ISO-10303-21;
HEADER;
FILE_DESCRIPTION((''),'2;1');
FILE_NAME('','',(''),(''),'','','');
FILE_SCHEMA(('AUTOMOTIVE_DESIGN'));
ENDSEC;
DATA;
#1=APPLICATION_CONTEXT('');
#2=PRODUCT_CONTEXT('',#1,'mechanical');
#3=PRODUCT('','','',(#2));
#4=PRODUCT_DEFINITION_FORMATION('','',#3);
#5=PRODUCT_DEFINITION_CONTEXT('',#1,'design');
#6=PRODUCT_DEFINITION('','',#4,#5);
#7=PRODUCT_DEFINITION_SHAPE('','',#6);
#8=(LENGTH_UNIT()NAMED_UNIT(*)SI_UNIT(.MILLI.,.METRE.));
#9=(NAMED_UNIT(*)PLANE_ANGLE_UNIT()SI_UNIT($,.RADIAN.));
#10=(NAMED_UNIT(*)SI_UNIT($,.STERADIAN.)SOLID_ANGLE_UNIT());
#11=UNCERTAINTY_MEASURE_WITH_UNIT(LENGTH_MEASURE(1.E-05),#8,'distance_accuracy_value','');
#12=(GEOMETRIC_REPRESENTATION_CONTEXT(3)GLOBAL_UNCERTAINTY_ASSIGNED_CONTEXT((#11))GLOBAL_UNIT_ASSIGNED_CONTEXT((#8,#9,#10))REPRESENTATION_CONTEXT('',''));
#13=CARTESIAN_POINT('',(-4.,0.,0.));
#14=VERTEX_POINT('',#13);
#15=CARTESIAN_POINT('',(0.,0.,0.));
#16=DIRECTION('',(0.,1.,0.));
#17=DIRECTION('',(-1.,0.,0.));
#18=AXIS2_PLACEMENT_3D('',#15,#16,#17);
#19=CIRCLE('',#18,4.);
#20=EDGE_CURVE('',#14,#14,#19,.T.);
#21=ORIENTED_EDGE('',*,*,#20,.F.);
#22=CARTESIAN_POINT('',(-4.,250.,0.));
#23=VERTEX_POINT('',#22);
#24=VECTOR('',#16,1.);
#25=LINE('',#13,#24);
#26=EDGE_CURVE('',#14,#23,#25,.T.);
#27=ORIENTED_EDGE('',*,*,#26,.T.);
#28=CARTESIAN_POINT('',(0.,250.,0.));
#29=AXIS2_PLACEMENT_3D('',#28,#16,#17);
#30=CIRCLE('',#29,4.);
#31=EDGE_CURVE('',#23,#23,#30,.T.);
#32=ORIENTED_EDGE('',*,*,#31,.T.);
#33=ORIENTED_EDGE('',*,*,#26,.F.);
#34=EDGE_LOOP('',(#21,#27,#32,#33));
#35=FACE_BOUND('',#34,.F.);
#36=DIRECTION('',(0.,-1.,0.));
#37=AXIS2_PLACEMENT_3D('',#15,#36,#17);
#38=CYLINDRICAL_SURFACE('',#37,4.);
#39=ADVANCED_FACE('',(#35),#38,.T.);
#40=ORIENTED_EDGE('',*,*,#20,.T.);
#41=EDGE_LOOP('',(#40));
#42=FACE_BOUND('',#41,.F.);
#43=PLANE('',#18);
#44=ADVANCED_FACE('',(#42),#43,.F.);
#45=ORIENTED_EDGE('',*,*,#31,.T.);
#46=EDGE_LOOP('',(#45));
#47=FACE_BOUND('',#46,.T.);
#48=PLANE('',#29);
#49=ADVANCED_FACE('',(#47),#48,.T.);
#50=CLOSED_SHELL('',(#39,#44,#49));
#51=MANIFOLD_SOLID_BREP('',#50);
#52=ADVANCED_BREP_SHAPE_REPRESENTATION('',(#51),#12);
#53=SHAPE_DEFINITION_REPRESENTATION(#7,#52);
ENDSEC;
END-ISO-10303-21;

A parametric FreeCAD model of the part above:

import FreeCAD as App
import Part
import Sketcher

V = App.Vector

doc = App.newDocument("Part")
body = doc.addObject("PartDesign::Body", "Body")

# Sketch on XZ plane
sketch1 = body.newObject("Sketcher::SketchObject", "Sketch")
sketch1.AttachmentSupport = (doc.getObject("XZ_Plane"), [""])
sketch1.MapMode = "FlatFace"
sketch1.addGeometry(Part.Circle(V(0, 0, 0), V(0, 0, 1), 4), False)
sketch1.addConstraint([
    Sketcher.Constraint("Coincident", 0, 3, -1, 1),
    Sketcher.Constraint("Diameter", 0, 8.0),
])
pad1 = body.newObject("PartDesign::Pad", "Pad")
pad1.Profile = sketch1
pad1.Length = 250
pad1.Reversed = True

doc.recompute()
